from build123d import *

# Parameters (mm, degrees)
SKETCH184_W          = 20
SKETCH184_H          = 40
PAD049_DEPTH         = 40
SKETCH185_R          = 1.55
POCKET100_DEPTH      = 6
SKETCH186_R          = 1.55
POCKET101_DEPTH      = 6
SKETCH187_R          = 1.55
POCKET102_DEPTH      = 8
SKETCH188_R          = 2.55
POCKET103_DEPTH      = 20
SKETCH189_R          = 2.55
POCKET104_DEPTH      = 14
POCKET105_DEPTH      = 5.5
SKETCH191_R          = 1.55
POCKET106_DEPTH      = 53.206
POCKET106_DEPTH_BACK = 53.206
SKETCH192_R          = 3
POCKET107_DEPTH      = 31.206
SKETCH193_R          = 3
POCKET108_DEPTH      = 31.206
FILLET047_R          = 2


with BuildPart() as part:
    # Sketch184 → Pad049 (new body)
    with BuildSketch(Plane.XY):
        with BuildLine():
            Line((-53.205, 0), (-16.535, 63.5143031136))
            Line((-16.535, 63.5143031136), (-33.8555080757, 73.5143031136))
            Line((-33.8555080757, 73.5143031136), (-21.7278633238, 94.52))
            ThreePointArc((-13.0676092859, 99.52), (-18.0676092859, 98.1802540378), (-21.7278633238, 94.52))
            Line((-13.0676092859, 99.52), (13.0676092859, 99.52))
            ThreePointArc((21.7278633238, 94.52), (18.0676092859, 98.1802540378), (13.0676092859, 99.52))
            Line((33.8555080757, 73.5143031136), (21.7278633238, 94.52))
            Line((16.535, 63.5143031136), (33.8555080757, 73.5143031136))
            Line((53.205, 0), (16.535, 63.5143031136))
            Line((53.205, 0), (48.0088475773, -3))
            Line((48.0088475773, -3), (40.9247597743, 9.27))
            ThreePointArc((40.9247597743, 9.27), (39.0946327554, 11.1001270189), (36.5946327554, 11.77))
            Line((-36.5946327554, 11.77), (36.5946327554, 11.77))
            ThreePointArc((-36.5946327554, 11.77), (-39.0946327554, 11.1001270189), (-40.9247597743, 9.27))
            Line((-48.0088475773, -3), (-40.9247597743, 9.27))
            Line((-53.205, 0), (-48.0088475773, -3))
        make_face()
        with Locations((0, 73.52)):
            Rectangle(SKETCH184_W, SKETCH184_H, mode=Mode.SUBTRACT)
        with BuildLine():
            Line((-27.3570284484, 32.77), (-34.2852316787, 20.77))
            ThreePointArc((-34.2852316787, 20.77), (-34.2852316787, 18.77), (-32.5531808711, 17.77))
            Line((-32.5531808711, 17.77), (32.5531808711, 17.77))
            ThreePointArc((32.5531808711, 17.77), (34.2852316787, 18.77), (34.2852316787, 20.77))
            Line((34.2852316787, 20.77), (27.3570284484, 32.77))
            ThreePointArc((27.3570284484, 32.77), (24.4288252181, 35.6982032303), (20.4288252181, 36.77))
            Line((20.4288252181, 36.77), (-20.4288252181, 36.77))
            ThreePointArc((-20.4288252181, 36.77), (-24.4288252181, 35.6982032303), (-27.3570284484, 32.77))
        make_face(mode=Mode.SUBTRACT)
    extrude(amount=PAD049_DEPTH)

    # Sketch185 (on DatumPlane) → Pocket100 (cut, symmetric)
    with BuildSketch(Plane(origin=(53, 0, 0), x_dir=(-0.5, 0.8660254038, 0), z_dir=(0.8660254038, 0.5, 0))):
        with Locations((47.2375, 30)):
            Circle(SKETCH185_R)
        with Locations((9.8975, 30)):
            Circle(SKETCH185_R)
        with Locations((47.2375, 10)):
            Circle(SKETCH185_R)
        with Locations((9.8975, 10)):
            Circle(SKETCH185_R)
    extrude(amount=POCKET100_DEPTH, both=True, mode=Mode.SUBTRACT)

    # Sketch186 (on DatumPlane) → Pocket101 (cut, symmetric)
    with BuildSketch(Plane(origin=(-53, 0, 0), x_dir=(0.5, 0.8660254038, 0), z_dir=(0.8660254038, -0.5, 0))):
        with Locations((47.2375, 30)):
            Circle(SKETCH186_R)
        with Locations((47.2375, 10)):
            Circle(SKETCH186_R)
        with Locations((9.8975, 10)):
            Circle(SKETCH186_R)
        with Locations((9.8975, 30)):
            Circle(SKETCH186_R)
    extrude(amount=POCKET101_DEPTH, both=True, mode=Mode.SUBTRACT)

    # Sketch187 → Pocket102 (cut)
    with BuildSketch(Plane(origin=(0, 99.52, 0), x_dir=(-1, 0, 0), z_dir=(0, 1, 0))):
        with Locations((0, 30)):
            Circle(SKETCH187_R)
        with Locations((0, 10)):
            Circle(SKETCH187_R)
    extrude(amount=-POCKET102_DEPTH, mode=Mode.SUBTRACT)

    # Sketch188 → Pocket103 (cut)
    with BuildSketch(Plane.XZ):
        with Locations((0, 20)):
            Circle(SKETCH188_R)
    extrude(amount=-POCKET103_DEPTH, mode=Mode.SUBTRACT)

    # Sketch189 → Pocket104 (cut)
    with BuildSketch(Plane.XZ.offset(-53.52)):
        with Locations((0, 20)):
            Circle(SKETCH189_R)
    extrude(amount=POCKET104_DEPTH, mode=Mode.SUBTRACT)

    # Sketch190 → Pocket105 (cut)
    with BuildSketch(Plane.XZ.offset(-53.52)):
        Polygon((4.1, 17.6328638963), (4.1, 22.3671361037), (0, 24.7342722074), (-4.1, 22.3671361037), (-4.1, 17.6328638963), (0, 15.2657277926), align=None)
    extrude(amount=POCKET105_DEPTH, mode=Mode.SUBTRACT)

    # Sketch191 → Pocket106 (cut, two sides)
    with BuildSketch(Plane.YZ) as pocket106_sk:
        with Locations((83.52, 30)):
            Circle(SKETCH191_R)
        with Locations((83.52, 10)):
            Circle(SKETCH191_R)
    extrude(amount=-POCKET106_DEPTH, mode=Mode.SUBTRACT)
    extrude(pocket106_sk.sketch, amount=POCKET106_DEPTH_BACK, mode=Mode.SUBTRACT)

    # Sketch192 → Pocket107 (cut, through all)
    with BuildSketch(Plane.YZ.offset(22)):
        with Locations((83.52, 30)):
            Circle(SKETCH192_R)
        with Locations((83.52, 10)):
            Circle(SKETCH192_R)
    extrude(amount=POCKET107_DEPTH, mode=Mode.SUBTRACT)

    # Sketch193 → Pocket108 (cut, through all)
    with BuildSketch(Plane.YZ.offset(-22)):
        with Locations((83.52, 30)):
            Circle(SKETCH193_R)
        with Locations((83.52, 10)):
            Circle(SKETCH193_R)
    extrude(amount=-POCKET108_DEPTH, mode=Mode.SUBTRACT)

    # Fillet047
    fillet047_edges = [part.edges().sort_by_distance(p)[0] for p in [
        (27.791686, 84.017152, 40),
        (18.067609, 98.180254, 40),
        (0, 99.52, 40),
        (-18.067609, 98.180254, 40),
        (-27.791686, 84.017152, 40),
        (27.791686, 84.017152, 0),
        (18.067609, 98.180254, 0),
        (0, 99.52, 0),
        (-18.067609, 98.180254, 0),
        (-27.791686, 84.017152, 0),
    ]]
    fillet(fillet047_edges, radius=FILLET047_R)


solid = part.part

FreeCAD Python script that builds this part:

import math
import FreeCAD as App
import Part
import Sketcher

V = App.Vector
Q = App.Units.Quantity


def edges_at(feature, points):
    """Names of the edges that pass closest to the given points."""
    edges = feature.Shape.Edges
    near = lambda p: min(range(len(edges)), key=lambda i: edges[i].distToShape(Part.Vertex(*p))[0])
    return sorted({f"Edge{near(p) + 1}" for p in points})

doc = App.newDocument("Part")
body = doc.addObject("PartDesign::Body", "Body")

sketch1 = doc.addObject("Sketcher::SketchObject", "Sketch")
body.addObject(sketch1)
sketch1.AttachmentSupport = (doc.XY_Plane, [""])
sketch1.MapMode = "FlatFace"
sketch1.addGeometry(Part.LineSegment(V(-16.5, 63.5, 0), V(-53.2, 0, 0)), False)
sketch1.addGeometry(Part.LineSegment(V(-53.2, 0, 0), V(-48, -3, 0)), False)
sketch1.addGeometry(Part.LineSegment(V(-48, -3, 0), V(-40.9, 9.3, 0)), False)
sketch1.addGeometry(Part.ArcOfCircle(Part.Circle(V(-36.6, 6.8, 0), V(0, 0, 1), 5), math.radians(90), math.radians(150)), False)
sketch1.addGeometry(Part.LineSegment(V(-36.6, 11.8, 0), V(36.6, 11.8, 0)), False)
sketch1.addGeometry(Part.ArcOfCircle(Part.Circle(V(36.6, 6.8, 0), V(0, 0, 1), 5), math.radians(30), math.radians(90)), False)
sketch1.addGeometry(Part.LineSegment(V(40.9, 9.3, 0), V(48, -3, 0)), False)
sketch1.addGeometry(Part.LineSegment(V(48, -3, 0), V(53.2, 0, 0)), False)
sketch1.addGeometry(Part.LineSegment(V(53.2, 0, 0), V(16.5, 63.5, 0)), False)
sketch1.addGeometry(Part.LineSegment(V(16.5, 63.5, 0), V(33.9, 73.5, 0)), False)
sketch1.addGeometry(Part.LineSegment(V(33.9, 73.5, 0), V(21.7, 94.5, 0)), False)
sketch1.addGeometry(Part.ArcOfCircle(Part.Circle(V(13.1, 89.5, 0), V(0, 0, 1), 10), math.radians(30), math.radians(90)), False)
sketch1.addGeometry(Part.LineSegment(V(13.1, 99.5, 0), V(-13.1, 99.5, 0)), False)
sketch1.addGeometry(Part.ArcOfCircle(Part.Circle(V(-13.1, 89.5, 0), V(0, 0, 1), 10), math.radians(90), math.radians(150)), False)
sketch1.addGeometry(Part.LineSegment(V(-21.7, 94.5, 0), V(-33.9, 73.5, 0)), False)
sketch1.addGeometry(Part.LineSegment(V(-33.9, 73.5, 0), V(-16.5, 63.5, 0)), False)
sketch1.addGeometry(Part.ArcOfCircle(Part.Circle(V(-20.4, 28.8, 0), V(0, 0, 1), 8), math.radians(90), math.radians(150)), False)
sketch1.addGeometry(Part.LineSegment(V(-20.4, 36.8, 0), V(20.4, 36.8, 0)), False)
sketch1.addGeometry(Part.ArcOfCircle(Part.Circle(V(20.4, 28.8, 0), V(0, 0, 1), 8), math.radians(30), math.radians(90)), False)
sketch1.addGeometry(Part.LineSegment(V(27.4, 32.8, 0), V(34.3, 20.8, 0)), False)
sketch1.addGeometry(Part.ArcOfCircle(Part.Circle(V(32.6, 19.8, 0), V(0, 0, 1), 2), math.radians(-90), math.radians(30)), False)
sketch1.addGeometry(Part.LineSegment(V(32.6, 17.8, 0), V(-32.6, 17.8, 0)), False)
sketch1.addGeometry(Part.ArcOfCircle(Part.Circle(V(-32.6, 19.8, 0), V(0, 0, 1), 2), math.radians(150), math.radians(270)), False)
sketch1.addGeometry(Part.LineSegment(V(-34.3, 20.8, 0), V(-27.4, 32.8, 0)), False)
sketch1.addGeometry(Part.LineSegment(V(-10, 53.5, 0), V(-10, 93.5, 0)), False)
sketch1.addGeometry(Part.LineSegment(V(-10, 93.5, 0), V(10, 93.5, 0)), False)
sketch1.addGeometry(Part.LineSegment(V(10, 93.5, 0), V(10, 53.5, 0)), False)
sketch1.addGeometry(Part.LineSegment(V(10, 53.5, 0), V(-10, 53.5, 0)), False)
sketch1.addConstraint(Sketcher.Constraint("Coincident", 0, 2, 1, 1))
sketch1.addConstraint(Sketcher.Constraint("Coincident", 1, 2, 2, 1))
sketch1.addConstraint(Sketcher.Constraint("Tangent", 2, 2, 3, 2))
sketch1.addConstraint(Sketcher.Constraint("Tangent", 3, 1, 4, 1))
sketch1.addConstraint(Sketcher.Constraint("Tangent", 4, 2, 5, 2))
sketch1.addConstraint(Sketcher.Constraint("Tangent", 5, 1, 6, 1))
sketch1.addConstraint(Sketcher.Constraint("Coincident", 6, 2, 7, 1))
sketch1.addConstraint(Sketcher.Constraint("Coincident", 7, 2, 8, 1))
sketch1.addConstraint(Sketcher.Constraint("Coincident", 8, 2, 9, 1))
sketch1.addConstraint(Sketcher.Constraint("Coincident", 9, 2, 10, 1))
sketch1.addConstraint(Sketcher.Constraint("Tangent", 10, 2, 11, 1))
sketch1.addConstraint(Sketcher.Constraint("Tangent", 11, 2, 12, 1))
sketch1.addConstraint(Sketcher.Constraint("Tangent", 12, 2, 13, 1))
sketch1.addConstraint(Sketcher.Constraint("Tangent", 13, 2, 14, 1))
sketch1.addConstraint(Sketcher.Constraint("Coincident", 14, 2, 15, 1))
sketch1.addConstraint(Sketcher.Constraint("Coincident", 15, 2, 0, 1))
sketch1.addConstraint(Sketcher.Constraint("Tangent", 16, 1, 17, 1))
sketch1.addConstraint(Sketcher.Constraint("Tangent", 17, 2, 18, 2))
sketch1.addConstraint(Sketcher.Constraint("Tangent", 18, 1, 19, 1))
sketch1.addConstraint(Sketcher.Constraint("Tangent", 19, 2, 20, 2))
sketch1.addConstraint(Sketcher.Constraint("Tangent", 20, 1, 21, 1))
sketch1.addConstraint(Sketcher.Constraint("Tangent", 21, 2, 22, 2))
sketch1.addConstraint(Sketcher.Constraint("Tangent", 22, 1, 23, 1))
sketch1.addConstraint(Sketcher.Constraint("Tangent", 23, 2, 16, 2))
sketch1.addConstraint(Sketcher.Constraint("Coincident", 24, 2, 25, 1))
sketch1.addConstraint(Sketcher.Constraint("Coincident", 25, 2, 26, 1))
sketch1.addConstraint(Sketcher.Constraint("Coincident", 26, 2, 27, 1))
sketch1.addConstraint(Sketcher.Constraint("Coincident", 27, 2, 24, 1))
sketch1.addConstraint(Sketcher.Constraint("Horizontal", 4))
sketch1.addConstraint(Sketcher.Constraint("Horizontal", 12))
sketch1.addConstraint(Sketcher.Constraint("Horizontal", 17))
sketch1.addConstraint(Sketcher.Constraint("Horizontal", 21))
sketch1.addConstraint(Sketcher.Constraint("Vertical", 24))
sketch1.addConstraint(Sketcher.Constraint("Horizontal", 25))
sketch1.addConstraint(Sketcher.Constraint("Vertical", 26))
sketch1.addConstraint(Sketcher.Constraint("Horizontal", 27))
sketch1.addConstraint(Sketcher.Constraint("Equal", 3, 5))
sketch1.addConstraint(Sketcher.Constraint("Equal", 11, 13))
sketch1.addConstraint(Sketcher.Constraint("Equal", 16, 18))
sketch1.addConstraint(Sketcher.Constraint("Equal", 20, 22))
sketch1.addConstraint(Sketcher.Constraint("Symmetric", 0, 2, 7, 2, -1, 1))
sketch1.addConstraint(Sketcher.Constraint("Symmetric", 2, 2, 5, 1, -2))
sketch1.addConstraint(Sketcher.Constraint("Symmetric", 10, 2, 13, 2, -2))
sketch1.addConstraint(Sketcher.Constraint("Symmetric", 8, 2, 15, 2, -2))
sketch1.addConstraint(Sketcher.Constraint("Symmetric", 19, 2, 22, 1, -2))
sketch1.addConstraint(Sketcher.Constraint("PointOnObject", 0, 2, -1))
sketch1.addConstraint(Sketcher.Constraint("Perpendicular", 0, 1))
sketch1.addConstraint(Sketcher.Constraint("Perpendicular", 1, 2))
sketch1.addConstraint(Sketcher.Constraint("Perpendicular", 6, 7))
sketch1.addConstraint(Sketcher.Constraint("Perpendicular", 8, 9))
sketch1.addConstraint(Sketcher.Constraint("Perpendicular", 9, 10))
sketch1.addConstraint(Sketcher.Constraint("Perpendicular", 14, 15))
sketch1.addConstraint(Sketcher.Constraint("Parallel", 10, 19))
sketch1.addConstraint(Sketcher.Constraint("Radius", 3, Q("5 mm")))
sketch1.addConstraint(Sketcher.Constraint("Radius", 11, Q("10 mm")))
sketch1.addConstraint(Sketcher.Constraint("Radius", 16, Q("8 mm")))
sketch1.addConstraint(Sketcher.Constraint("Radius", 20, Q("2 mm")))
sketch1.addConstraint(Sketcher.Constraint("DistanceX", 25, 1, 25, 2, Q("20 mm")))
sketch1.addConstraint(Sketcher.Constraint("DistanceY", 24, 1, 24, 2, Q("40 mm")))
sketch1.addConstraint(Sketcher.Constraint("Angle", 0, Q("-120 deg")))
sketch1.addConstraint(Sketcher.Constraint("Distance", 1, Q("6 mm")))
sketch1.addConstraint(Sketcher.Constraint("Distance", 9, Q("20 mm")))
sketch1.addConstraint(Sketcher.Constraint("DistanceX", 24, 2, -1, 1, Q("10 mm")))
sketch1.addConstraint(Sketcher.Constraint("DistanceY", 3, 3, 16, 3, Q("22 mm")))
sketch1.addConstraint(Sketcher.Constraint("DistanceY", 5, 3, 20, 3, Q("13 mm")))
sketch1.addConstraint(Sketcher.Constraint("DistanceY", 13, 3, 24, 2, Q("4 mm")))
sketch1.addConstraint(Sketcher.Constraint("Distance", 0, Q("73.34 mm")))
sketch1.addConstraint(Sketcher.Constraint("DistanceY", -1, 1, 3, 3, Q("6.77 mm")))
sketch1.addConstraint(Sketcher.Constraint("DistanceY", -1, 1, 11, 3, Q("89.52 mm")))
sketch1.addConstraint(Sketcher.Constraint("DistanceX", 15, 2, 8, 2, Q("33.07 mm")))
sketch1.addConstraint(Sketcher.Constraint("DistanceX", 17, 1, 17, 2, Q("40.85765 mm")))
pad1 = doc.addObject("PartDesign::Pad", "Pad")
body.addObject(pad1)
pad1.Profile = sketch1
pad1.Length = 40

sketch2 = doc.addObject("Sketcher::SketchObject", "Sketch001")
body.addObject(sketch2)
sketch2.Placement = App.Placement(V(53, 0, 0), App.Rotation(V(-0.5, 0.866025404, 0), V(0, 0, 1), V(0.866025404, 0.5, 0), "ZXY"))
sketch2.addGeometry(Part.Circle(V(47.2, 30, 0), V(0, 0, 1), 1.6), False)
sketch2.addGeometry(Part.Circle(V(9.9, 30, 0), V(0, 0, 1), 1.6), False)
sketch2.addGeometry(Part.Circle(V(47.2, 10, 0), V(0, 0, 1), 1.6), False)
sketch2.addGeometry(Part.Circle(V(9.9, 10, 0), V(0, 0, 1), 1.6), False)
sketch2.addConstraint(Sketcher.Constraint("Equal", 0, 1))
sketch2.addConstraint(Sketcher.Constraint("Equal", 1, 2))
sketch2.addConstraint(Sketcher.Constraint("Equal", 2, 3))
sketch2.addConstraint(Sketcher.Constraint("Horizontal", 0, 3, 1, 3))
sketch2.addConstraint(Sketcher.Constraint("Horizontal", 2, 3, 3, 3))
sketch2.addConstraint(Sketcher.Constraint("Vertical", 0, 3, 2, 3))
sketch2.addConstraint(Sketcher.Constraint("Vertical", 1, 3, 3, 3))
sketch2.addConstraint(Sketcher.Constraint("Diameter", 0, Q("3.1 mm")))
sketch2.addConstraint(Sketcher.Constraint("DistanceY", -1, 1, 0, 3, Q("30 mm")))
sketch2.addConstraint(Sketcher.Constraint("DistanceY", -1, 1, 2, 3, Q("10 mm")))
sketch2.addConstraint(Sketcher.Constraint("DistanceX", 1, 3, 0, 3, Q("37.34 mm")))
sketch2.addConstraint(Sketcher.Constraint("DistanceX", -1, 1, 0, 3, Q("47.2375 mm")))
pocket1 = doc.addObject("PartDesign::Pocket", "Pocket")
body.addObject(pocket1)
pocket1.Profile = sketch2
pocket1.Length = 12
pocket1.Midplane = True

sketch3 = doc.addObject("Sketcher::SketchObject", "Sketch002")
body.addObject(sketch3)
sketch3.Placement = App.Placement(V(-53, 0, 0), App.Rotation(V(0.5, 0.866025404, 0), V(0, 0, 1), V(0.866025404, -0.5, 0), "ZXY"))
sketch3.addGeometry(Part.Circle(V(47.2, 30, 0), V(0, 0, 1), 1.6), False)
sketch3.addGeometry(Part.Circle(V(47.2, 10, 0), V(0, 0, 1), 1.6), False)
sketch3.addGeometry(Part.Circle(V(9.9, 10, 0), V(0, 0, 1), 1.6), False)
sketch3.addGeometry(Part.Circle(V(9.9, 30, 0), V(0, 0, 1), 1.6), False)
sketch3.addConstraint(Sketcher.Constraint("Equal", 0, 1))
sketch3.addConstraint(Sketcher.Constraint("Equal", 1, 2))
sketch3.addConstraint(Sketcher.Constraint("Equal", 2, 3))
sketch3.addConstraint(Sketcher.Constraint("Horizontal", 1, 3, 2, 3))
sketch3.addConstraint(Sketcher.Constraint("Horizontal", 0, 3, 3, 3))
sketch3.addConstraint(Sketcher.Constraint("Vertical", 0, 3, 1, 3))
sketch3.addConstraint(Sketcher.Constraint("Vertical", 2, 3, 3, 3))
sketch3.addConstraint(Sketcher.Constraint("Diameter", 0, Q("3.1 mm")))
sketch3.addConstraint(Sketcher.Constraint("DistanceY", -1, 1, 0, 3, Q("30 mm")))
sketch3.addConstraint(Sketcher.Constraint("DistanceY", -1, 1, 1, 3, Q("10 mm")))
sketch3.addConstraint(Sketcher.Constraint("DistanceX", 2, 3, 1, 3, Q("37.34 mm")))
sketch3.addConstraint(Sketcher.Constraint("DistanceX", -1, 1, 0, 3, Q("47.2375 mm")))
pocket2 = doc.addObject("PartDesign::Pocket", "Pocket001")
body.addObject(pocket2)
pocket2.Profile = sketch3
pocket2.Length = 12
pocket2.Midplane = True

sketch4 = doc.addObject("Sketcher::SketchObject", "Sketch003")
body.addObject(sketch4)
sketch4.AttachmentSupport = (doc.XZ_Plane, [""])
sketch4.MapMode = "FlatFace"
sketch4.AttachmentOffset = App.Placement(V(0, 0, -99.52), App.Rotation())
sketch4.addGeometry(Part.Circle(V(0, 30, 0), V(0, 0, 1), 1.6), False)
sketch4.addGeometry(Part.Circle(V(0, 10, 0), V(0, 0, 1), 1.6), False)
sketch4.addConstraint(Sketcher.Constraint("Equal", 0, 1))
sketch4.addConstraint(Sketcher.Constraint("PointOnObject", 0, 3, -2))
sketch4.addConstraint(Sketcher.Constraint("PointOnObject", 1, 3, -2))
sketch4.addConstraint(Sketcher.Constraint("Diameter", 0, Q("3.1 mm")))
sketch4.addConstraint(Sketcher.Constraint("DistanceY", -1, 1, 0, 3, Q("30 mm")))
sketch4.addConstraint(Sketcher.Constraint("DistanceY", -1, 1, 1, 3, Q("10 mm")))
pocket3 = doc.addObject("PartDesign::Pocket", "Pocket002")
body.addObject(pocket3)
pocket3.Profile = sketch4
pocket3.Length = 8
pocket3.Reversed = True

sketch5 = doc.addObject("Sketcher::SketchObject", "Sketch004")
body.addObject(sketch5)
sketch5.AttachmentSupport = (doc.XZ_Plane, [""])
sketch5.MapMode = "FlatFace"
sketch5.addGeometry(Part.Circle(V(0, 20, 0), V(0, 0, 1), 2.5), False)
sketch5.addConstraint(Sketcher.Constraint("PointOnObject", 0, 3, -2))
sketch5.addConstraint(Sketcher.Constraint("Diameter", 0, Q("5.1 mm")))
sketch5.addConstraint(Sketcher.Constraint("DistanceY", -1, 1, 0, 3, Q("20 mm")))
pocket4 = doc.addObject("PartDesign::Pocket", "Pocket003")
body.addObject(pocket4)
pocket4.Profile = sketch5
pocket4.Length = 20

sketch6 = doc.addObject("Sketcher::SketchObject", "Sketch005")
body.addObject(sketch6)
sketch6.AttachmentSupport = (doc.XZ_Plane, [""])
sketch6.MapMode = "FlatFace"
sketch6.AttachmentOffset = App.Placement(V(0, 0, -53.52), App.Rotation())
sketch6.addGeometry(Part.Circle(V(0, 20, 0), V(0, 0, 1), 2.5), False)
sketch6.addConstraint(Sketcher.Constraint("PointOnObject", 0, 3, -2))
sketch6.addConstraint(Sketcher.Constraint("Diameter", 0, Q("5.1 mm")))
sketch6.addConstraint(Sketcher.Constraint("DistanceY", -1, 1, 0, 3, Q("20 mm")))
pocket5 = doc.addObject("PartDesign::Pocket", "Pocket004")
body.addObject(pocket5)
pocket5.Profile = sketch6
pocket5.Length = 14
pocket5.Reversed = True

sketch7 = doc.addObject("Sketcher::SketchObject", "Sketch006")
body.addObject(sketch7)
sketch7.AttachmentSupport = (doc.XZ_Plane, [""])
sketch7.MapMode = "FlatFace"
sketch7.AttachmentOffset = App.Placement(V(0, 0, -53.52), App.Rotation())
sketch7.addGeometry(Part.LineSegment(V(4.1, 17.6, 0), V(4.1, 22.4, 0)), False)
sketch7.addGeometry(Part.LineSegment(V(4.1, 22.4, 0), V(0, 24.7, 0)), False)
sketch7.addGeometry(Part.LineSegment(V(0, 24.7, 0), V(-4.1, 22.4, 0)), False)
sketch7.addGeometry(Part.LineSegment(V(-4.1, 22.4, 0), V(-4.1, 17.6, 0)), False)
sketch7.addGeometry(Part.LineSegment(V(-4.1, 17.6, 0), V(0, 15.3, 0)), False)
sketch7.addGeometry(Part.LineSegment(V(0, 15.3, 0), V(4.1, 17.6, 0)), False)
sketch7.addConstraint(Sketcher.Constraint("Coincident", 0, 2, 1, 1))
sketch7.addConstraint(Sketcher.Constraint("Coincident", 1, 2, 2, 1))
sketch7.addConstraint(Sketcher.Constraint("Coincident", 2, 2, 3, 1))
sketch7.addConstraint(Sketcher.Constraint("Coincident", 3, 2, 4, 1))
sketch7.addConstraint(Sketcher.Constraint("Coincident", 4, 2, 5, 1))
sketch7.addConstraint(Sketcher.Constraint("Coincident", 5, 2, 0, 1))
sketch7.addConstraint(Sketcher.Constraint("Vertical", 0))
sketch7.addConstraint(Sketcher.Constraint("Vertical", 3))
sketch7.addConstraint(Sketcher.Constraint("Symmetric", 0, 2, 2, 2, -2))
sketch7.addConstraint(Sketcher.Constraint("PointOnObject", 1, 2, -2))
sketch7.addConstraint(Sketcher.Constraint("PointOnObject", 4, 2, -2))
sketch7.addConstraint(Sketcher.Constraint("Parallel", 1, 4))
sketch7.addConstraint(Sketcher.Constraint("Parallel", 2, 5))
sketch7.addConstraint(Sketcher.Constraint("Angle", 1, Q("150 deg")))
sketch7.addConstraint(Sketcher.Constraint("DistanceX", -1, 1, 0, 2, Q("4.1 mm")))
sketch7.addConstraint(Sketcher.Constraint("DistanceY", 0, 1, 0, 2, Q("4.734272 mm")))
sketch7.addConstraint(Sketcher.Constraint("DistanceY", -1, 1, 0, 2, Q("22.367136 mm")))
pocket6 = doc.addObject("PartDesign::Pocket", "Pocket005")
body.addObject(pocket6)
pocket6.Profile = sketch7
pocket6.Length = 5.5
pocket6.Reversed = True

sketch8 = doc.addObject("Sketcher::SketchObject", "Sketch007")
body.addObject(sketch8)
sketch8.AttachmentSupport = (doc.YZ_Plane, [""])
sketch8.MapMode = "FlatFace"
sketch8.addGeometry(Part.Circle(V(83.5, 30, 0), V(0, 0, 1), 1.6), False)
sketch8.addGeometry(Part.Circle(V(83.5, 10, 0), V(0, 0, 1), 1.6), False)
sketch8.addConstraint(Sketcher.Constraint("Equal", 0, 1))
sketch8.addConstraint(Sketcher.Constraint("Vertical", 0, 3, 1, 3))
sketch8.addConstraint(Sketcher.Constraint("Diameter", 0, Q("3.1 mm")))
sketch8.addConstraint(Sketcher.Constraint("DistanceY", -1, 1, 0, 3, Q("30 mm")))
sketch8.addConstraint(Sketcher.Constraint("DistanceY", -1, 1, 1, 3, Q("10 mm")))
sketch8.addConstraint(Sketcher.Constraint("DistanceX", -1, 1, 0, 3, Q("83.52 mm")))
pocket7 = doc.addObject("PartDesign::Pocket", "Pocket006")
body.addObject(pocket7)
pocket7.Profile = sketch8
pocket7.Type = "ThroughAll"
pocket7.Midplane = True

sketch9 = doc.addObject("Sketcher::SketchObject", "Sketch008")
body.addObject(sketch9)
sketch9.AttachmentSupport = (doc.YZ_Plane, [""])
sketch9.MapMode = "FlatFace"
sketch9.AttachmentOffset = App.Placement(V(0, 0, 22), App.Rotation())
sketch9.addGeometry(Part.Circle(V(83.5, 30, 0), V(0, 0, 1), 3), False)
sketch9.addGeometry(Part.Circle(V(83.5, 10, 0), V(0, 0, 1), 3), False)
sketch9.addConstraint(Sketcher.Constraint("Equal", 0, 1))
sketch9.addConstraint(Sketcher.Constraint("Vertical", 0, 3, 1, 3))
sketch9.addConstraint(Sketcher.Constraint("Diameter", 0, Q("6 mm")))
sketch9.addConstraint(Sketcher.Constraint("DistanceY", -1, 1, 0, 3, Q("30 mm")))
sketch9.addConstraint(Sketcher.Constraint("DistanceY", -1, 1, 1, 3, Q("10 mm")))
sketch9.addConstraint(Sketcher.Constraint("DistanceX", -1, 1, 0, 3, Q("83.52 mm")))
pocket8 = doc.addObject("PartDesign::Pocket", "Pocket007")
body.addObject(pocket8)
pocket8.Profile = sketch9
pocket8.Type = "ThroughAll"
pocket8.Reversed = True

sketch10 = doc.addObject("Sketcher::SketchObject", "Sketch009")
body.addObject(sketch10)
sketch10.AttachmentSupport = (doc.YZ_Plane, [""])
sketch10.MapMode = "FlatFace"
sketch10.AttachmentOffset = App.Placement(V(0, 0, -22), App.Rotation())
sketch10.addGeometry(Part.Circle(V(83.5, 30, 0), V(0, 0, 1), 3), False)
sketch10.addGeometry(Part.Circle(V(83.5, 10, 0), V(0, 0, 1), 3), False)
sketch10.addConstraint(Sketcher.Constraint("Equal", 0, 1))
sketch10.addConstraint(Sketcher.Constraint("Vertical", 0, 3, 1, 3))
sketch10.addConstraint(Sketcher.Constraint("Diameter", 0, Q("6 mm")))
sketch10.addConstraint(Sketcher.Constraint("DistanceY", -1, 1, 0, 3, Q("30 mm")))
sketch10.addConstraint(Sketcher.Constraint("DistanceY", -1, 1, 1, 3, Q("10 mm")))
sketch10.addConstraint(Sketcher.Constraint("DistanceX", -1, 1, 0, 3, Q("83.52 mm")))
pocket9 = doc.addObject("PartDesign::Pocket", "Pocket008")
body.addObject(pocket9)
pocket9.Profile = sketch10
pocket9.Type = "ThroughAll"
doc.recompute()

fillet = doc.addObject("PartDesign::Fillet", "Fillet")
body.addObject(fillet)
fillet.Base = (pocket9, edges_at(pocket9, [
    (27.792, 84.017, 40),
    (18.068, 98.18, 40),
    (0, 99.52, 40),
    (-18.068, 98.18, 40),
    (-27.792, 84.017, 40),
    (27.792, 84.017, 0),
    (18.068, 98.18, 0),
    (0, 99.52, 0),
    (-18.068, 98.18, 0),
    (-27.792, 84.017, 0),
]))
fillet.Radius = 2

doc.recompute()
